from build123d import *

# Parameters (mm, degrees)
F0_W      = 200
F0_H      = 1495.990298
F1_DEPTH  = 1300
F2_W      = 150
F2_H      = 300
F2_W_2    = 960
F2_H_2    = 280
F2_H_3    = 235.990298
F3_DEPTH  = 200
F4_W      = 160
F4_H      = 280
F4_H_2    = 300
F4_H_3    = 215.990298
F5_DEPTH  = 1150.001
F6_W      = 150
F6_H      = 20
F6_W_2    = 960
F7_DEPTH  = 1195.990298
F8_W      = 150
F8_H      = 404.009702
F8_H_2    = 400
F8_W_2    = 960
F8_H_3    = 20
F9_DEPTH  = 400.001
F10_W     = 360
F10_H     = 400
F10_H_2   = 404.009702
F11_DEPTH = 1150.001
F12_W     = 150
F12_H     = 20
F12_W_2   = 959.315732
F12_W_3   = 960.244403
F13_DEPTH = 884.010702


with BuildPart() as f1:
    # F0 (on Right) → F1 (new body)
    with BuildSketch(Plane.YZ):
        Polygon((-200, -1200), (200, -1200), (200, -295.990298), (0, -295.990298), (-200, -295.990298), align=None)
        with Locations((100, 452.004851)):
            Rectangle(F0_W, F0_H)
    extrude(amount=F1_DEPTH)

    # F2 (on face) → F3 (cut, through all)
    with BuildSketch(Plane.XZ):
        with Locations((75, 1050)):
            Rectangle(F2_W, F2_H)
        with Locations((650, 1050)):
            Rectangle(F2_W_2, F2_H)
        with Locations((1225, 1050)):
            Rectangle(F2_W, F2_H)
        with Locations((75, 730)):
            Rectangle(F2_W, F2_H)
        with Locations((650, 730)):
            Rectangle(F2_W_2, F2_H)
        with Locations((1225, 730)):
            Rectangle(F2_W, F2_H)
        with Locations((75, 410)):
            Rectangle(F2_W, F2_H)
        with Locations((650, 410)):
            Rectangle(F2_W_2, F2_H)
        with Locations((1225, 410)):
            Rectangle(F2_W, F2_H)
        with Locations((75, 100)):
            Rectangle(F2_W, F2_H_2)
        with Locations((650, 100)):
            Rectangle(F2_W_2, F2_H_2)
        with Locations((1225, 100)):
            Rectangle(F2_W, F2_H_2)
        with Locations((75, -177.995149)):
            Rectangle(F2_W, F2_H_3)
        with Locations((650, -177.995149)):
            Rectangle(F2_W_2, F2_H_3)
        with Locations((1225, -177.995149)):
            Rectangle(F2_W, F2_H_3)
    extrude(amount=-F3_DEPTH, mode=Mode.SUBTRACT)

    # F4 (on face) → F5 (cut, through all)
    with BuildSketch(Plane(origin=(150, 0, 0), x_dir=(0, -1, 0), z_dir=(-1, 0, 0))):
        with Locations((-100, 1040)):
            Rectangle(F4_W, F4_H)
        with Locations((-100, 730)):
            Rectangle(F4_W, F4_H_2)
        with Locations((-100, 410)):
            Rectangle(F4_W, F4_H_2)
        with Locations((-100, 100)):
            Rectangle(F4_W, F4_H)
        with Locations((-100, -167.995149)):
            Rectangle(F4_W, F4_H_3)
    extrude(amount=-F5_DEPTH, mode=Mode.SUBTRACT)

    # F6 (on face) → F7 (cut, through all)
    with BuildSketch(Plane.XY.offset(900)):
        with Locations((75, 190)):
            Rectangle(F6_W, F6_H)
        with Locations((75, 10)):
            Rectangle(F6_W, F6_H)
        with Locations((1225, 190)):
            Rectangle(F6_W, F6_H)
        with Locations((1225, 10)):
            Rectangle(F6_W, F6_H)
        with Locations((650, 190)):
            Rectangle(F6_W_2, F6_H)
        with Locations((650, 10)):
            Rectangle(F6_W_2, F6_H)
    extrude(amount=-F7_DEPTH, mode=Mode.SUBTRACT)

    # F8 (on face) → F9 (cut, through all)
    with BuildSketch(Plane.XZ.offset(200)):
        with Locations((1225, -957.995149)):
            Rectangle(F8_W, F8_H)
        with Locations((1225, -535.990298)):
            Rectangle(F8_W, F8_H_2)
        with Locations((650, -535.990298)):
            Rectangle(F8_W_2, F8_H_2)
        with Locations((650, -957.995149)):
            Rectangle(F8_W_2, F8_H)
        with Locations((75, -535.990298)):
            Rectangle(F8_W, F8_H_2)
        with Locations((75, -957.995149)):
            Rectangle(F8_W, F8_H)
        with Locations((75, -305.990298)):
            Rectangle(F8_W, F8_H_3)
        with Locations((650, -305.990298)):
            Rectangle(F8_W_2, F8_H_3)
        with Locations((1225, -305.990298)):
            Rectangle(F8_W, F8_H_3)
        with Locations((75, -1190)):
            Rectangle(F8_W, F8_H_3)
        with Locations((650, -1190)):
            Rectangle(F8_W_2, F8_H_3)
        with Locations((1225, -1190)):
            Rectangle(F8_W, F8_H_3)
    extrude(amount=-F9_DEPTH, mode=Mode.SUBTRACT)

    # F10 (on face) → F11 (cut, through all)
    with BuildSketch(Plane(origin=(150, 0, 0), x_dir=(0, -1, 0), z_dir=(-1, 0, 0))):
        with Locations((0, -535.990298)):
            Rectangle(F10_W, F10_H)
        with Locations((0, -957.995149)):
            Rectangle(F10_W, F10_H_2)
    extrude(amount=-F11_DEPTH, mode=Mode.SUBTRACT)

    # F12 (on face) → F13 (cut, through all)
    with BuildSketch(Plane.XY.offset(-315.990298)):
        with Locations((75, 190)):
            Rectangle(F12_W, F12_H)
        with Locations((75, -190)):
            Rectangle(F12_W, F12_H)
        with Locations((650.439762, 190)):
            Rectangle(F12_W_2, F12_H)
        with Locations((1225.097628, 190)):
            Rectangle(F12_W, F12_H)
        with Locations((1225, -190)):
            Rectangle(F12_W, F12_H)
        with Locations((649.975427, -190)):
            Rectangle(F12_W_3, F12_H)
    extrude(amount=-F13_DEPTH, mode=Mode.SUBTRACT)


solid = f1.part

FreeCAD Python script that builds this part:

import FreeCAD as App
import Part
import Sketcher

V = App.Vector
Q = App.Units.Quantity


def add_polygon(sketch, points):
    """Adds a closed chain of lines whose ends are joined by coincident constraints."""
    first, n = sketch.GeometryCount, len(points)
    for a, b in zip(points, points[1:] + points[:1]):
        sketch.addGeometry(Part.LineSegment(App.Vector(*a, 0), App.Vector(*b, 0)), False)
    for i in range(n):
        sketch.addConstraint(Sketcher.Constraint("Coincident", first + i, 2, first + (i + 1) % n, 1))

doc = App.newDocument("Part")
body = doc.addObject("PartDesign::Body", "Body")

# Sketch on YZ plane
sketch1 = body.newObject("Sketcher::SketchObject", "Sketch")
sketch1.AttachmentSupport = (doc.getObject("YZ_Plane"), [""])
sketch1.MapMode = "FlatFace"
add_polygon(sketch1, [(-200, -1200), (200, -1200), (200, 1200), (0, 1200), (0, -296), (-200, -296)])  # lines 0-5
sketch1.addConstraint([
    Sketcher.Constraint("Horizontal", 0),
    Sketcher.Constraint("Vertical", 1),
    Sketcher.Constraint("Horizontal", 2),
    Sketcher.Constraint("Vertical", 3),
    Sketcher.Constraint("Horizontal", 4),
    Sketcher.Constraint("Vertical", 5),
    Sketcher.Constraint("Symmetric", 1, 2, 5, 2, -1, 1),
    Sketcher.Constraint("PointOnObject", 2, 2, -2),
    Sketcher.Constraint("DistanceX", 0, 1, 0, 2, Q("400 mm")),
    Sketcher.Constraint("DistanceY", 1, 1, 1, 2, Q("2400 mm")),
    Sketcher.Constraint("DistanceY", 3, 2, 3, 1, Q("1495.990298 mm")),
])
pad1 = body.newObject("PartDesign::Pad", "Pad")
pad1.Profile = sketch1
pad1.Length = 1300

# Sketch on XZ plane
sketch2 = body.newObject("Sketcher::SketchObject", "Sketch001")
sketch2.AttachmentSupport = (doc.getObject("XZ_Plane"), [""])
sketch2.MapMode = "FlatFace"
add_polygon(sketch2, [(0, 1200), (0, 900), (150, 900), (150, 1200)])  # lines 0-3
add_polygon(sketch2, [(170, 1200), (170, 900), (1130, 900), (1130, 1200)])  # lines 4-7
add_polygon(sketch2, [(1150, 1200), (1150, 900), (1300, 900), (1300, 1200)])  # lines 8-11
add_polygon(sketch2, [(0, 880), (0, 580), (150, 580), (150, 880)])  # lines 12-15
add_polygon(sketch2, [(170, 880), (170, 580), (1130, 580), (1130, 880)])  # lines 16-19
add_polygon(sketch2, [(1150, 880), (1150, 580), (1300, 580), (1300, 880)])  # lines 20-23
add_polygon(sketch2, [(0, 560), (0, 260), (150, 260), (150, 560)])  # lines 24-27
add_polygon(sketch2, [(170, 560), (170, 260), (1130, 260), (1130, 560)])  # lines 28-31
add_polygon(sketch2, [(1150, 560), (1150, 260), (1300, 260), (1300, 560)])  # lines 32-35
add_polygon(sketch2, [(0, 240), (0, -40), (150, -40), (150, 240)])  # lines 36-39
add_polygon(sketch2, [(170, 240), (170, -40), (1130, -40), (1130, 240)])  # lines 40-43
add_polygon(sketch2, [(1150, 240), (1150, -40), (1300, -40), (1300, 240)])  # lines 44-47
add_polygon(sketch2, [(0, -60), (0, -296), (150, -296), (150, -60)])  # lines 48-51
add_polygon(sketch2, [(170, -60), (170, -296), (1130, -296), (1130, -60)])  # lines 52-55
add_polygon(sketch2, [(1150, -60), (1150, -296), (1300, -296), (1300, -60)])  # lines 56-59
sketch2.addConstraint([
    Sketcher.Constraint("Vertical", 0),
    Sketcher.Constraint("Horizontal", 1),
    Sketcher.Constraint("Vertical", 2),
    Sketcher.Constraint("Horizontal", 3),
    Sketcher.Constraint("Vertical", 4),
    Sketcher.Constraint("Horizontal", 5),
    Sketcher.Constraint("Vertical", 6),
    Sketcher.Constraint("Horizontal", 7),
    Sketcher.Constraint("Vertical", 8),
    Sketcher.Constraint("Horizontal", 9),
    Sketcher.Constraint("Vertical", 10),
    Sketcher.Constraint("Horizontal", 11),
    Sketcher.Constraint("Vertical", 12),
    Sketcher.Constraint("Horizontal", 13),
    Sketcher.Constraint("Vertical", 14),
    Sketcher.Constraint("Horizontal", 15),
    Sketcher.Constraint("Vertical", 16),
    Sketcher.Constraint("Horizontal", 17),
    Sketcher.Constraint("Vertical", 18),
    Sketcher.Constraint("Horizontal", 19),
    Sketcher.Constraint("Vertical", 20),
    Sketcher.Constraint("Horizontal", 21),
    Sketcher.Constraint("Vertical", 22),
    Sketcher.Constraint("Horizontal", 23),
    Sketcher.Constraint("Vertical", 24),
    Sketcher.Constraint("Horizontal", 25),
    Sketcher.Constraint("Vertical", 26),
    Sketcher.Constraint("Horizontal", 27),
    Sketcher.Constraint("Vertical", 28),
    Sketcher.Constraint("Horizontal", 29),
    Sketcher.Constraint("Vertical", 30),
    Sketcher.Constraint("Horizontal", 31),
    Sketcher.Constraint("Vertical", 32),
    Sketcher.Constraint("Horizontal", 33),
    Sketcher.Constraint("Vertical", 34),
    Sketcher.Constraint("Horizontal", 35),
    Sketcher.Constraint("Vertical", 36),
    Sketcher.Constraint("Horizontal", 37),
    Sketcher.Constraint("Vertical", 38),
    Sketcher.Constraint("Horizontal", 39),
    Sketcher.Constraint("Vertical", 40),
    Sketcher.Constraint("Horizontal", 41),
    Sketcher.Constraint("Vertical", 42),
    Sketcher.Constraint("Horizontal", 43),
    Sketcher.Constraint("Vertical", 44),
    Sketcher.Constraint("Horizontal", 45),
    Sketcher.Constraint("Vertical", 46),
    Sketcher.Constraint("Horizontal", 47),
    Sketcher.Constraint("Vertical", 48),
    Sketcher.Constraint("Horizontal", 49),
    Sketcher.Constraint("Vertical", 50),
    Sketcher.Constraint("Horizontal", 51),
    Sketcher.Constraint("Vertical", 52),
    Sketcher.Constraint("Horizontal", 53),
    Sketcher.Constraint("Vertical", 54),
    Sketcher.Constraint("Horizontal", 55),
    Sketcher.Constraint("Vertical", 56),
    Sketcher.Constraint("Horizontal", 57),
    Sketcher.Constraint("Vertical", 58),
    Sketcher.Constraint("Horizontal", 59),
    Sketcher.Constraint("PointOnObject", 0, 2, -2),
    Sketcher.Constraint("PointOnObject", 12, 2, -2),
    Sketcher.Constraint("PointOnObject", 24, 2, -2),
    Sketcher.Constraint("PointOnObject", 36, 2, -2),
    Sketcher.Constraint("PointOnObject", 48, 2, -2),
    Sketcher.Constraint("Horizontal", 1, 2, 4, 2),
    Sketcher.Constraint("Horizontal", 3, 2, 6, 2),
    Sketcher.Constraint("Horizontal", 5, 2, 8, 2),
    Sketcher.Constraint("Horizontal", 7, 2, 10, 2),
    Sketcher.Constraint("Horizontal", 13, 2, 16, 2),
    Sketcher.Constraint("Horizontal", 15, 2, 18, 2),
    Sketcher.Constraint("Horizontal", 17, 2, 20, 2),
    Sketcher.Constraint("Horizontal", 19, 2, 22, 2),
    Sketcher.Constraint("Horizontal", 25, 2, 28, 2),
    Sketcher.Constraint("Horizontal", 27, 2, 30, 2),
    Sketcher.Constraint("Horizontal", 29, 2, 32, 2),
    Sketcher.Constraint("Horizontal", 31, 2, 34, 2),
    Sketcher.Constraint("Horizontal", 37, 2, 40, 2),
    Sketcher.Constraint("Horizontal", 39, 2, 42, 2),
    Sketcher.Constraint("Horizontal", 41, 2, 44, 2),
    Sketcher.Constraint("Horizontal", 43, 2, 46, 2),
    Sketcher.Constraint("Horizontal", 49, 2, 52, 2),
    Sketcher.Constraint("Horizontal", 51, 2, 54, 2),
    Sketcher.Constraint("Horizontal", 53, 2, 56, 2),
    Sketcher.Constraint("Horizontal", 55, 2, 58, 2),
    Sketcher.Constraint("Vertical", 2, 2, 13, 2),
    Sketcher.Constraint("Vertical", 7, 2, 16, 2),
    Sketcher.Constraint("Vertical", 6, 2, 17, 2),
    Sketcher.Constraint("Vertical", 11, 2, 20, 2),
    Sketcher.Constraint("Vertical", 10, 2, 21, 2),
    Sketcher.Constraint("Vertical", 14, 2, 25, 2),
    Sketcher.Constraint("Vertical", 19, 2, 28, 2),
    Sketcher.Constraint("Vertical", 18, 2, 29, 2),
    Sketcher.Constraint("Vertical", 23, 2, 32, 2),
    Sketcher.Constraint("Vertical", 22, 2, 33, 2),
    Sketcher.Constraint("Vertical", 26, 2, 37, 2),
    Sketcher.Constraint("Vertical", 31, 2, 40, 2),
    Sketcher.Constraint("Vertical", 30, 2, 41, 2),
    Sketcher.Constraint("Vertical", 35, 2, 44, 2),
    Sketcher.Constraint("Vertical", 34, 2, 45, 2),
    Sketcher.Constraint("Vertical", 38, 2, 49, 2),
    Sketcher.Constraint("Vertical", 43, 2, 52, 2),
    Sketcher.Constraint("Vertical", 42, 2, 53, 2),
    Sketcher.Constraint("Vertical", 47, 2, 56, 2),
    Sketcher.Constraint("Vertical", 46, 2, 57, 2),
    Sketcher.Constraint("Equal", 3, 9),
    Sketcher.Constraint("Equal", 10, 12),
    Sketcher.Constraint("Equal", 22, 24),
    Sketcher.Constraint("DistanceX", 1, 1, 1, 2, Q("150 mm")),
    Sketcher.Constraint("DistanceX", 5, 1, 5, 2, Q("960 mm")),
    Sketcher.Constraint("DistanceY", 0, 2, 0, 1, Q("300 mm")),
    Sketcher.Constraint("DistanceY", 36, 2, 36, 1, Q("280 mm")),
    Sketcher.Constraint("DistanceY", -1, 1, 0, 2, Q("900 mm")),
    Sketcher.Constraint("DistanceX", -1, 1, 4, 2, Q("170 mm")),
    Sketcher.Constraint("DistanceX", -1, 1, 8, 2, Q("1150 mm")),
    Sketcher.Constraint("DistanceY", -1, 1, 12, 2, Q("580 mm")),
    Sketcher.Constraint("DistanceY", -1, 1, 24, 2, Q("260 mm")),
    Sketcher.Constraint("DistanceY", 36, 2, -1, 1, Q("40 mm")),
    Sketcher.Constraint("DistanceY", 50, 2, -1, 1, Q("60 mm")),
    Sketcher.Constraint("DistanceY", 48, 2, 48, 1, Q("235.990298 mm")),
])
pocket1 = body.newObject("PartDesign::Pocket", "Pocket")
pocket1.Profile = sketch2
pocket1.Type = "ThroughAll"

# Sketch on YZ plane
sketch3 = body.newObject("Sketcher::SketchObject", "Sketch002")
sketch3.AttachmentSupport = (doc.getObject("YZ_Plane"), [""])
sketch3.MapMode = "FlatFace"
sketch3.AttachmentOffset = App.Placement(V(0, 0, 150), App.Rotation())
add_polygon(sketch3, [(180, 1180), (180, 900), (20, 900), (20, 1180)])  # lines 0-3
add_polygon(sketch3, [(180, 880), (180, 580), (20, 580), (20, 880)])  # lines 4-7
add_polygon(sketch3, [(180, 560), (180, 260), (20, 260), (20, 560)])  # lines 8-11
add_polygon(sketch3, [(180, 240), (180, -40), (20, -40), (20, 240)])  # lines 12-15
add_polygon(sketch3, [(180, -60), (180, -276), (20, -276), (20, -60)])  # lines 16-19
sketch3.addConstraint([
    Sketcher.Constraint("Vertical", 0),
    Sketcher.Constraint("Horizontal", 1),
    Sketcher.Constraint("Vertical", 2),
    Sketcher.Constraint("Horizontal", 3),
    Sketcher.Constraint("Vertical", 4),
    Sketcher.Constraint("Horizontal", 5),
    Sketcher.Constraint("Vertical", 6),
    Sketcher.Constraint("Horizontal", 7),
    Sketcher.Constraint("Vertical", 8),
    Sketcher.Constraint("Horizontal", 9),
    Sketcher.Constraint("Vertical", 10),
    Sketcher.Constraint("Horizontal", 11),
    Sketcher.Constraint("Vertical", 12),
    Sketcher.Constraint("Horizontal", 13),
    Sketcher.Constraint("Vertical", 14),
    Sketcher.Constraint("Horizontal", 15),
    Sketcher.Constraint("Vertical", 16),
    Sketcher.Constraint("Horizontal", 17),
    Sketcher.Constraint("Vertical", 18),
    Sketcher.Constraint("Horizontal", 19),
    Sketcher.Constraint("Vertical", 3, 2, 4, 2),
    Sketcher.Constraint("Vertical", 2, 2, 5, 2),
    Sketcher.Constraint("Vertical", 7, 2, 8, 2),
    Sketcher.Constraint("Vertical", 6, 2, 9, 2),
    Sketcher.Constraint("Vertical", 11, 2, 12, 2),
    Sketcher.Constraint("Vertical", 10, 2, 13, 2),
    Sketcher.Constraint("Vertical", 15, 2, 16, 2),
    Sketcher.Constraint("Vertical", 14, 2, 17, 2),
    Sketcher.Constraint("Equal", 6, 8),
    Sketcher.Constraint("Equal", 2, 12),
    Sketcher.Constraint("DistanceX", 1, 2, 1, 1, Q("160 mm")),
    Sketcher.Constraint("DistanceY", 0, 2, 0, 1, Q("280 mm")),
    Sketcher.Constraint("DistanceY", 4, 2, 4, 1, Q("300 mm")),
    Sketcher.Constraint("DistanceX", -1, 1, 0, 2, Q("180 mm")),
    Sketcher.Constraint("DistanceY", -1, 1, 0, 2, Q("900 mm")),
    Sketcher.Constraint("DistanceY", -1, 1, 4, 2, Q("580 mm")),
    Sketcher.Constraint("DistanceY", -1, 1, 8, 2, Q("260 mm")),
    Sketcher.Constraint("DistanceY", 12, 2, -1, 1, Q("40 mm")),
    Sketcher.Constraint("DistanceY", 18, 2, -1, 1, Q("60 mm")),
    Sketcher.Constraint("DistanceY", 16, 2, 16, 1, Q("215.990298 mm")),
])
pocket2 = body.newObject("PartDesign::Pocket", "Pocket001")
pocket2.Profile = sketch3
pocket2.Type = "ThroughAll"
pocket2.Reversed = True

# Sketch on XY plane
sketch4 = body.newObject("Sketcher::SketchObject", "Sketch003")
sketch4.AttachmentSupport = (doc.getObject("XY_Plane"), [""])
sketch4.MapMode = "FlatFace"
sketch4.AttachmentOffset = App.Placement(V(0, 0, 900), App.Rotation())
add_polygon(sketch4, [(0, 200), (0, 180), (150, 180), (150, 200)])  # lines 0-3
add_polygon(sketch4, [(0, 20), (0, 0), (150, 0), (150, 20)])  # lines 4-7
add_polygon(sketch4, [(1150, 200), (1150, 180), (1300, 180), (1300, 200)])  # lines 8-11
add_polygon(sketch4, [(1150, 20), (1150, 0), (1300, 0), (1300, 20)])  # lines 12-15
add_polygon(sketch4, [(170, 200), (170, 180), (1130, 180), (1130, 200)])  # lines 16-19
add_polygon(sketch4, [(170, 20), (170, 0), (1130, 0), (1130, 20)])  # lines 20-23
sketch4.addConstraint([
    Sketcher.Constraint("Vertical", 0),
    Sketcher.Constraint("Horizontal", 1),
    Sketcher.Constraint("Vertical", 2),
    Sketcher.Constraint("Horizontal", 3),
    Sketcher.Constraint("Vertical", 4),
    Sketcher.Constraint("Horizontal", 5),
    Sketcher.Constraint("Vertical", 6),
    Sketcher.Constraint("Horizontal", 7),
    Sketcher.Constraint("Vertical", 8),
    Sketcher.Constraint("Horizontal", 9),
    Sketcher.Constraint("Vertical", 10),
    Sketcher.Constraint("Horizontal", 11),
    Sketcher.Constraint("Vertical", 12),
    Sketcher.Constraint("Horizontal", 13),
    Sketcher.Constraint("Vertical", 14),
    Sketcher.Constraint("Horizontal", 15),
    Sketcher.Constraint("Vertical", 16),
    Sketcher.Constraint("Horizontal", 17),
    Sketcher.Constraint("Vertical", 18),
    Sketcher.Constraint("Horizontal", 19),
    Sketcher.Constraint("Vertical", 20),
    Sketcher.Constraint("Horizontal", 21),
    Sketcher.Constraint("Vertical", 22),
    Sketcher.Constraint("Horizontal", 23),
    Sketcher.Constraint("Coincident", 4, 2, -1, 1),
    Sketcher.Constraint("PointOnObject", 0, 2, -2),
    Sketcher.Constraint("PointOnObject", 12, 2, -1),
    Sketcher.Constraint("PointOnObject", 20, 2, -1),
    Sketcher.Constraint("Horizontal", 1, 2, 8, 2),
    Sketcher.Constraint("Horizontal", 3, 2, 10, 2),
    Sketcher.Constraint("Horizontal", 7, 2, 14, 2),
    Sketcher.Constraint("Horizontal", 9, 2, 16, 2),
    Sketcher.Constraint("Horizontal", 11, 2, 18, 2),
    Sketcher.Constraint("Horizontal", 15, 2, 22, 2),
    Sketcher.Constraint("Vertical", 2, 2, 5, 2),
    Sketcher.Constraint("Vertical", 11, 2, 12, 2),
    Sketcher.Constraint("Vertical", 10, 2, 13, 2),
    Sketcher.Constraint("Vertical", 19, 2, 20, 2),
    Sketcher.Constraint("Vertical", 18, 2, 21, 2),
    Sketcher.Constraint("Equal", 7, 9),
    Sketcher.Constraint("Equal", 2, 4),
    Sketcher.Constraint("DistanceX", 1, 1, 1, 2, Q("150 mm")),
    Sketcher.Constraint("DistanceX", 17, 1, 17, 2, Q("960 mm")),
    Sketcher.Constraint("DistanceY", 0, 2, 0, 1, Q("20 mm")),
    Sketcher.Constraint("DistanceY", -1, 1, 0, 2, Q("180 mm")),
    Sketcher.Constraint("DistanceX", -1, 1, 8, 2, Q("1150 mm")),
    Sketcher.Constraint("DistanceX", -1, 1, 16, 2, Q("170 mm")),
])
pocket3 = body.newObject("PartDesign::Pocket", "Pocket002")
pocket3.Profile = sketch4
pocket3.Length = 1195.990298

# Sketch on XZ plane
sketch5 = body.newObject("Sketcher::SketchObject", "Sketch004")
sketch5.AttachmentSupport = (doc.getObject("XZ_Plane"), [""])
sketch5.MapMode = "FlatFace"
sketch5.AttachmentOffset = App.Placement(V(0, 0, 200), App.Rotation())
add_polygon(sketch5, [(1150, -756), (1150, -1160), (1300, -1160), (1300, -756)])  # lines 0-3
add_polygon(sketch5, [(1150, -336), (1150, -736), (1300, -736), (1300, -336)])  # lines 4-7
add_polygon(sketch5, [(170, -336), (170, -736), (1130, -736), (1130, -336)])  # lines 8-11
add_polygon(sketch5, [(170, -756), (170, -1160), (1130, -1160), (1130, -756)])  # lines 12-15
add_polygon(sketch5, [(0, -336), (0, -736), (150, -736), (150, -336)])  # lines 16-19
add_polygon(sketch5, [(0, -756), (0, -1160), (150, -1160), (150, -756)])  # lines 20-23
add_polygon(sketch5, [(0, -296), (0, -316), (150, -316), (150, -296)])  # lines 24-27
add_polygon(sketch5, [(170, -296), (170, -316), (1130, -316), (1130, -296)])  # lines 28-31
add_polygon(sketch5, [(1150, -296), (1150, -316), (1300, -316), (1300, -296)])  # lines 32-35
add_polygon(sketch5, [(0, -1180), (0, -1200), (150, -1200), (150, -1180)])  # lines 36-39
add_polygon(sketch5, [(170, -1180), (170, -1200), (1130, -1200), (1130, -1180)])  # lines 40-43
add_polygon(sketch5, [(1150, -1180), (1150, -1200), (1300, -1200), (1300, -1180)])  # lines 44-47
sketch5.addConstraint([
    Sketcher.Constraint("Vertical", 0),
    Sketcher.Constraint("Horizontal", 1),
    Sketcher.Constraint("Vertical", 2),
    Sketcher.Constraint("Horizontal", 3),
    Sketcher.Constraint("Vertical", 4),
    Sketcher.Constraint("Horizontal", 5),
    Sketcher.Constraint("Vertical", 6),
    Sketcher.Constraint("Horizontal", 7),
    Sketcher.Constraint("Vertical", 8),
    Sketcher.Constraint("Horizontal", 9),
    Sketcher.Constraint("Vertical", 10),
    Sketcher.Constraint("Horizontal", 11),
    Sketcher.Constraint("Vertical", 12),
    Sketcher.Constraint("Horizontal", 13),
    Sketcher.Constraint("Vertical", 14),
    Sketcher.Constraint("Horizontal", 15),
    Sketcher.Constraint("Vertical", 16),
    Sketcher.Constraint("Horizontal", 17),
    Sketcher.Constraint("Vertical", 18),
    Sketcher.Constraint("Horizontal", 19),
    Sketcher.Constraint("Vertical", 20),
    Sketcher.Constraint("Horizontal", 21),
    Sketcher.Constraint("Vertical", 22),
    Sketcher.Constraint("Horizontal", 23),
    Sketcher.Constraint("Vertical", 24),
    Sketcher.Constraint("Horizontal", 25),
    Sketcher.Constraint("Vertical", 26),
    Sketcher.Constraint("Horizontal", 27),
    Sketcher.Constraint("Vertical", 28),
    Sketcher.Constraint("Horizontal", 29),
    Sketcher.Constraint("Vertical", 30),
    Sketcher.Constraint("Horizontal", 31),
    Sketcher.Constraint("Vertical", 32),
    Sketcher.Constraint("Horizontal", 33),
    Sketcher.Constraint("Vertical", 34),
    Sketcher.Constraint("Horizontal", 35),
    Sketcher.Constraint("Vertical", 36),
    Sketcher.Constraint("Horizontal", 37),
    Sketcher.Constraint("Vertical", 38),
    Sketcher.Constraint("Horizontal", 39),
    Sketcher.Constraint("Vertical", 40),
    Sketcher.Constraint("Horizontal", 41),
    Sketcher.Constraint("Vertical", 42),
    Sketcher.Constraint("Horizontal", 43),
    Sketcher.Constraint("Vertical", 44),
    Sketcher.Constraint("Horizontal", 45),
    Sketcher.Constraint("Vertical", 46),
    Sketcher.Constraint("Horizontal", 47),
    Sketcher.Constraint("PointOnObject", 16, 2, -2),
    Sketcher.Constraint("PointOnObject", 20, 2, -2),
    Sketcher.Constraint("PointOnObject", 24, 2, -2),
    Sketcher.Constraint("PointOnObject", 36, 2, -2),
    Sketcher.Constraint("Horizontal", 5, 2, 8, 2),
    Sketcher.Constraint("Horizontal", 7, 2, 10, 2),
    Sketcher.Constraint("Horizontal", 1, 2, 12, 2),
    Sketcher.Constraint("Horizontal", 3, 2, 14, 2),
    Sketcher.Constraint("Horizontal", 9, 2, 16, 2),
    Sketcher.Constraint("Horizontal", 11, 2, 18, 2),
    Sketcher.Constraint("Horizontal", 13, 2, 20, 2),
    Sketcher.Constraint("Horizontal", 15, 2, 22, 2),
    Sketcher.Constraint("Horizontal", 25, 2, 28, 2),
    Sketcher.Constraint("Horizontal", 27, 2, 30, 2),
    Sketcher.Constraint("Horizontal", 29, 2, 32, 2),
    Sketcher.Constraint("Horizontal", 31, 2, 34, 2),
    Sketcher.Constraint("Horizontal", 37, 2, 40, 2),
    Sketcher.Constraint("Horizontal", 39, 2, 42, 2),
    Sketcher.Constraint("Horizontal", 41, 2, 44, 2),
    Sketcher.Constraint("Horizontal", 43, 2, 46, 2),
    Sketcher.Constraint("Vertical", 3, 2, 4, 2),
    Sketcher.Constraint("Vertical", 2, 2, 5, 2),
    Sketcher.Constraint("Vertical", 11, 2, 12, 2),
    Sketcher.Constraint("Vertical", 10, 2, 13, 2),
    Sketcher.Constraint("Vertical", 18, 2, 21, 2),
    Sketcher.Constraint("Vertical", 22, 2, 25, 2),
    Sketcher.Constraint("Vertical", 15, 2, 28, 2),
    Sketcher.Constraint("Vertical", 14, 2, 29, 2),
    Sketcher.Constraint("Vertical", 7, 2, 32, 2),
    Sketcher.Constraint("Vertical", 6, 2, 33, 2),
    Sketcher.Constraint("Vertical", 26, 2, 37, 2),
    Sketcher.Constraint("Vertical", 31, 2, 40, 2),
    Sketcher.Constraint("Vertical", 30, 2, 41, 2),
    Sketcher.Constraint("Vertical", 35, 2, 44, 2),
    Sketcher.Constraint("Vertical", 34, 2, 45, 2),
    Sketcher.Constraint("Equal", 7, 17),
    Sketcher.Constraint("Equal", 34, 36),
    Sketcher.Constraint("DistanceX", 1, 1, 1, 2, Q("150 mm")),
    Sketcher.Constraint("DistanceX", 9, 1, 9, 2, Q("960 mm")),
    Sketcher.Constraint("DistanceY", 4, 2, 4, 1, Q("400 mm")),
    Sketcher.Constraint("DistanceY", 24, 2, 24, 1, Q("20 mm")),
    Sketcher.Constraint("DistanceX", -1, 1, 0, 2, Q("1150 mm")),
    Sketcher.Constraint("DistanceY", 0, 2, -1, 1, Q("1160 mm")),
    Sketcher.Constraint("DistanceX", -1, 1, 8, 2, Q("170 mm")),
    Sketcher.Constraint("DistanceY", 36, 2, -1, 1, Q("1200 mm")),
    Sketcher.Constraint("DistanceY", 3, 2, 4, 2, Q("20 mm")),
    Sketcher.Constraint("DistanceY", 19, 2, 24, 2, Q("20 mm")),
    Sketcher.Constraint("DistanceY", 0, 2, 0, 1, Q("404.009702 mm")),
])
pocket4 = body.newObject("PartDesign::Pocket", "Pocket003")
pocket4.Profile = sketch5
pocket4.Type = "ThroughAll"

# Sketch on YZ plane
sketch6 = body.newObject("Sketcher::SketchObject", "Sketch005")
sketch6.AttachmentSupport = (doc.getObject("YZ_Plane"), [""])
sketch6.MapMode = "FlatFace"
sketch6.AttachmentOffset = App.Placement(V(0, 0, 150), App.Rotation())
add_polygon(sketch6, [(180, -336), (180, -736), (-180, -736), (-180, -336)])  # lines 0-3
add_polygon(sketch6, [(180, -756), (180, -1160), (-180, -1160), (-180, -756)])  # lines 4-7
sketch6.addConstraint([
    Sketcher.Constraint("Vertical", 0),
    Sketcher.Constraint("Horizontal", 1),
    Sketcher.Constraint("Vertical", 2),
    Sketcher.Constraint("Horizontal", 3),
    Sketcher.Constraint("Vertical", 4),
    Sketcher.Constraint("Horizontal", 5),
    Sketcher.Constraint("Vertical", 6),
    Sketcher.Constraint("Horizontal", 7),
    Sketcher.Constraint("Vertical", 3, 2, 4, 2),
    Sketcher.Constraint("Vertical", 2, 2, 5, 2),
    Sketcher.Constraint("DistanceX", 1, 2, 1, 1, Q("360 mm")),
    Sketcher.Constraint("DistanceY", 0, 2, 0, 1, Q("400 mm")),
    Sketcher.Constraint("DistanceX", -1, 1, 0, 2, Q("180 mm")),
    Sketcher.Constraint("DistanceY", 4, 2, -1, 1, Q("1160 mm")),
    Sketcher.Constraint("DistanceY", 6, 2, 1, 2, Q("20 mm")),
    Sketcher.Constraint("DistanceY", 4, 2, 4, 1, Q("404.009702 mm")),
])
pocket5 = body.newObject("PartDesign::Pocket", "Pocket004")
pocket5.Profile = sketch6
pocket5.Type = "ThroughAll"
pocket5.Reversed = True

# Sketch on XY plane
sketch7 = body.newObject("Sketcher::SketchObject", "Sketch006")
sketch7.AttachmentSupport = (doc.getObject("XY_Plane"), [""])
sketch7.MapMode = "FlatFace"
sketch7.AttachmentOffset = App.Placement(V(0, 0, -315.990298), App.Rotation())
add_polygon(sketch7, [(0, 200), (0, 180), (150, 180), (150, 200)])  # lines 0-3
add_polygon(sketch7, [(0, -180), (0, -200), (150, -200), (150, -180)])  # lines 4-7
add_polygon(sketch7, [(171, 200), (171, 180), (1130, 180), (1130, 200)])  # lines 8-11
add_polygon(sketch7, [(1150, 200), (1150, 180), (1300, 180), (1300, 200)])  # lines 12-15
add_polygon(sketch7, [(1150, -180), (1150, -200), (1300, -200), (1300, -180)])  # lines 16-19
add_polygon(sketch7, [(170, -180), (170, -200), (1130, -200), (1130, -180)])  # lines 20-23
sketch7.addConstraint([
    Sketcher.Constraint("Vertical", 0),
    Sketcher.Constraint("Horizontal", 1),
    Sketcher.Constraint("Vertical", 2),
    Sketcher.Constraint("Horizontal", 3),
    Sketcher.Constraint("Vertical", 4),
    Sketcher.Constraint("Horizontal", 5),
    Sketcher.Constraint("Vertical", 6),
    Sketcher.Constraint("Horizontal", 7),
    Sketcher.Constraint("Vertical", 8),
    Sketcher.Constraint("Horizontal", 9),
    Sketcher.Constraint("Vertical", 10),
    Sketcher.Constraint("Horizontal", 11),
    Sketcher.Constraint("Vertical", 12),
    Sketcher.Constraint("Horizontal", 13),
    Sketcher.Constraint("Vertical", 14),
    Sketcher.Constraint("Horizontal", 15),
    Sketcher.Constraint("Vertical", 16),
    Sketcher.Constraint("Horizontal", 17),
    Sketcher.Constraint("Vertical", 18),
    Sketcher.Constraint("Horizontal", 19),
    Sketcher.Constraint("Vertical", 20),
    Sketcher.Constraint("Horizontal", 21),
    Sketcher.Constraint("Vertical", 22),
    Sketcher.Constraint("Horizontal", 23),
    Sketcher.Constraint("Symmetric", 3, 2, 4, 2, -1, 1),
    Sketcher.Constraint("Symmetric", 1, 2, 6, 2, -1),
    Sketcher.Constraint("Symmetric", 10, 2, 21, 2, -1),
    Sketcher.Constraint("PointOnObject", 0, 2, -2),
    Sketcher.Constraint("Horizontal", 1, 2, 8, 2),
    Sketcher.Constraint("Horizontal", 3, 2, 10, 2),
    Sketcher.Constraint("Horizontal", 9, 2, 12, 2),
    Sketcher.Constraint("Horizontal", 11, 2, 14, 2),
    Sketcher.Constraint("Horizontal", 5, 2, 16, 2),
    Sketcher.Constraint("Horizontal", 7, 2, 18, 2),
    Sketcher.Constraint("Horizontal", 19, 2, 22, 2),
    Sketcher.Constraint("Equal", 7, 13),
    Sketcher.Constraint("Equal", 15, 17),
    Sketcher.Constraint("DistanceX", 1, 1, 1, 2, Q("150 mm")),
    Sketcher.Constraint("DistanceY", 0, 2, 0, 1, Q("20 mm")),
    Sketcher.Constraint("DistanceY", -1, 1, 0, 2, Q("180 mm")),
    Sketcher.Constraint("DistanceX", -1, 1, 16, 2, Q("1150 mm")),
    Sketcher.Constraint("DistanceX", 9, 2, 12, 2, Q("20 mm")),
    Sketcher.Constraint("DistanceX", 9, 1, 9, 2, Q("959.315732 mm")),
    Sketcher.Constraint("DistanceX", 21, 1, 21, 2, Q("960.244403 mm")),
    Sketcher.Constraint("DistanceX", -1, 1, 9, 2, Q("1130.097628 mm")),
])
pocket6 = body.newObject("PartDesign::Pocket", "Pocket005")
pocket6.Profile = sketch7
pocket6.Type = "ThroughAll"

doc.recompute()
